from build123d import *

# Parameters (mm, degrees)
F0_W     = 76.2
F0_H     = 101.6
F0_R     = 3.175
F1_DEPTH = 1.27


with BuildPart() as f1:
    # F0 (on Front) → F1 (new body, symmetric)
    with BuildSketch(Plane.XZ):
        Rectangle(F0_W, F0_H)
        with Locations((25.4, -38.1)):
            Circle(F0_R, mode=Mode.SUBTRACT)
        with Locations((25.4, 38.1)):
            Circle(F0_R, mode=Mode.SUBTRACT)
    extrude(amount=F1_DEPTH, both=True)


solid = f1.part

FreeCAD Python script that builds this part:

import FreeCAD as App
import Part
import Sketcher
from FreeCAD import Vector
Q = App.Units.Quantity

doc = App.newDocument("Part")
body = doc.addObject("PartDesign::Body", "Body")

# Sketch on XZ plane
sketch1 = body.newObject("Sketcher::SketchObject", "Sketch")
sketch1.AttachmentSupport = (doc.getObject("XZ_Plane"), [""])
sketch1.MapMode = "FlatFace"
sketch1.addGeometry([
    Part.LineSegment(Vector(-38.1, 50.8, 0), Vector(-38.1, -50.8, 0)),  # 0
    Part.LineSegment(Vector(-38.1, -50.8, 0), Vector(38.1, -50.8, 0)),  # 1
    Part.LineSegment(Vector(38.1, -50.8, 0), Vector(38.1, 50.8, 0)),  # 2
    Part.LineSegment(Vector(38.1, 50.8, 0), Vector(-38.1, 50.8, 0)),  # 3
    Part.Circle(Vector(25.4, -38.1, 0), Vector(0, 0, 1), 3.2),  # 4
    Part.Circle(Vector(25.4, 38.1, 0), Vector(0, 0, 1), 3.2),  # 5
], False)
sketch1.addConstraint([
    Sketcher.Constraint("Coincident", 0, 2, 1, 1),
    Sketcher.Constraint("Coincident", 1, 2, 2, 1),
    Sketcher.Constraint("Coincident", 2, 2, 3, 1),
    Sketcher.Constraint("Coincident", 3, 2, 0, 1),
    Sketcher.Constraint("Vertical", 0),
    Sketcher.Constraint("Horizontal", 1),
    Sketcher.Constraint("Vertical", 2),
    Sketcher.Constraint("Horizontal", 3),
    Sketcher.Constraint("Equal", 4, 5),
    Sketcher.Constraint("Symmetric", 0, 2, 2, 2, -1, 1),
    Sketcher.Constraint("Symmetric", 4, 3, 5, 3, -1),
    Sketcher.Constraint("Diameter", 4, Q("0.25 in")),
    Sketcher.Constraint("DistanceX", 1, 1, 1, 2, Q("3 in")),
    Sketcher.Constraint("DistanceY", 0, 2, 0, 1, Q("4 in")),
    Sketcher.Constraint("DistanceX", -1, 1, 4, 3, Q("1 in")),
    Sketcher.Constraint("DistanceY", 4, 3, 5, 3, Q("3 in")),
])
pad1 = body.newObject("PartDesign::Pad", "Pad")
pad1.Profile = sketch1
pad1.Length = Q("0.1 in")
pad1.Midplane = True

doc.recompute()
